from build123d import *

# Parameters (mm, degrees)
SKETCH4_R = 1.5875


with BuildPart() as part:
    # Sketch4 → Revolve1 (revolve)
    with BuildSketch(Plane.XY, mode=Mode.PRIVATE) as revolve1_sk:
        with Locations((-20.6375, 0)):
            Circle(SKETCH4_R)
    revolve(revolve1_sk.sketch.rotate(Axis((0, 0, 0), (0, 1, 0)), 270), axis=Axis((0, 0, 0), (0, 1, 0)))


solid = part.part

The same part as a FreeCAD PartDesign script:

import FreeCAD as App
import Part
import Sketcher

V = App.Vector
Q = App.Units.Quantity

doc = App.newDocument("Part")
body = doc.addObject("PartDesign::Body", "Body")

# Sketch on XY plane
sketch1 = doc.addObject("Sketcher::SketchObject", "Sketch")
body.addObject(sketch1)
sketch1.AttachmentSupport = (doc.XY_Plane, [""])
sketch1.MapMode = "FlatFace"
sketch1.addGeometry(Part.Circle(V(-20.6, 0, 0), V(0, 0, 1), 1.6), False)
sketch1.addConstraint([
    Sketcher.Constraint("PointOnObject", 0, 3, -1),
    Sketcher.Constraint("Diameter", 0, Q("0.125 in")),
    Sketcher.Constraint("DistanceX", 0, 3, -1, 1, Q("0.8125 in")),
])
revolution = doc.addObject("PartDesign::Revolution", "Revolution")
body.addObject(revolution)
revolution.Profile = sketch1
revolution.ReferenceAxis = (sketch1, ["V_Axis"])
revolution.Angle = 360

doc.recompute()
